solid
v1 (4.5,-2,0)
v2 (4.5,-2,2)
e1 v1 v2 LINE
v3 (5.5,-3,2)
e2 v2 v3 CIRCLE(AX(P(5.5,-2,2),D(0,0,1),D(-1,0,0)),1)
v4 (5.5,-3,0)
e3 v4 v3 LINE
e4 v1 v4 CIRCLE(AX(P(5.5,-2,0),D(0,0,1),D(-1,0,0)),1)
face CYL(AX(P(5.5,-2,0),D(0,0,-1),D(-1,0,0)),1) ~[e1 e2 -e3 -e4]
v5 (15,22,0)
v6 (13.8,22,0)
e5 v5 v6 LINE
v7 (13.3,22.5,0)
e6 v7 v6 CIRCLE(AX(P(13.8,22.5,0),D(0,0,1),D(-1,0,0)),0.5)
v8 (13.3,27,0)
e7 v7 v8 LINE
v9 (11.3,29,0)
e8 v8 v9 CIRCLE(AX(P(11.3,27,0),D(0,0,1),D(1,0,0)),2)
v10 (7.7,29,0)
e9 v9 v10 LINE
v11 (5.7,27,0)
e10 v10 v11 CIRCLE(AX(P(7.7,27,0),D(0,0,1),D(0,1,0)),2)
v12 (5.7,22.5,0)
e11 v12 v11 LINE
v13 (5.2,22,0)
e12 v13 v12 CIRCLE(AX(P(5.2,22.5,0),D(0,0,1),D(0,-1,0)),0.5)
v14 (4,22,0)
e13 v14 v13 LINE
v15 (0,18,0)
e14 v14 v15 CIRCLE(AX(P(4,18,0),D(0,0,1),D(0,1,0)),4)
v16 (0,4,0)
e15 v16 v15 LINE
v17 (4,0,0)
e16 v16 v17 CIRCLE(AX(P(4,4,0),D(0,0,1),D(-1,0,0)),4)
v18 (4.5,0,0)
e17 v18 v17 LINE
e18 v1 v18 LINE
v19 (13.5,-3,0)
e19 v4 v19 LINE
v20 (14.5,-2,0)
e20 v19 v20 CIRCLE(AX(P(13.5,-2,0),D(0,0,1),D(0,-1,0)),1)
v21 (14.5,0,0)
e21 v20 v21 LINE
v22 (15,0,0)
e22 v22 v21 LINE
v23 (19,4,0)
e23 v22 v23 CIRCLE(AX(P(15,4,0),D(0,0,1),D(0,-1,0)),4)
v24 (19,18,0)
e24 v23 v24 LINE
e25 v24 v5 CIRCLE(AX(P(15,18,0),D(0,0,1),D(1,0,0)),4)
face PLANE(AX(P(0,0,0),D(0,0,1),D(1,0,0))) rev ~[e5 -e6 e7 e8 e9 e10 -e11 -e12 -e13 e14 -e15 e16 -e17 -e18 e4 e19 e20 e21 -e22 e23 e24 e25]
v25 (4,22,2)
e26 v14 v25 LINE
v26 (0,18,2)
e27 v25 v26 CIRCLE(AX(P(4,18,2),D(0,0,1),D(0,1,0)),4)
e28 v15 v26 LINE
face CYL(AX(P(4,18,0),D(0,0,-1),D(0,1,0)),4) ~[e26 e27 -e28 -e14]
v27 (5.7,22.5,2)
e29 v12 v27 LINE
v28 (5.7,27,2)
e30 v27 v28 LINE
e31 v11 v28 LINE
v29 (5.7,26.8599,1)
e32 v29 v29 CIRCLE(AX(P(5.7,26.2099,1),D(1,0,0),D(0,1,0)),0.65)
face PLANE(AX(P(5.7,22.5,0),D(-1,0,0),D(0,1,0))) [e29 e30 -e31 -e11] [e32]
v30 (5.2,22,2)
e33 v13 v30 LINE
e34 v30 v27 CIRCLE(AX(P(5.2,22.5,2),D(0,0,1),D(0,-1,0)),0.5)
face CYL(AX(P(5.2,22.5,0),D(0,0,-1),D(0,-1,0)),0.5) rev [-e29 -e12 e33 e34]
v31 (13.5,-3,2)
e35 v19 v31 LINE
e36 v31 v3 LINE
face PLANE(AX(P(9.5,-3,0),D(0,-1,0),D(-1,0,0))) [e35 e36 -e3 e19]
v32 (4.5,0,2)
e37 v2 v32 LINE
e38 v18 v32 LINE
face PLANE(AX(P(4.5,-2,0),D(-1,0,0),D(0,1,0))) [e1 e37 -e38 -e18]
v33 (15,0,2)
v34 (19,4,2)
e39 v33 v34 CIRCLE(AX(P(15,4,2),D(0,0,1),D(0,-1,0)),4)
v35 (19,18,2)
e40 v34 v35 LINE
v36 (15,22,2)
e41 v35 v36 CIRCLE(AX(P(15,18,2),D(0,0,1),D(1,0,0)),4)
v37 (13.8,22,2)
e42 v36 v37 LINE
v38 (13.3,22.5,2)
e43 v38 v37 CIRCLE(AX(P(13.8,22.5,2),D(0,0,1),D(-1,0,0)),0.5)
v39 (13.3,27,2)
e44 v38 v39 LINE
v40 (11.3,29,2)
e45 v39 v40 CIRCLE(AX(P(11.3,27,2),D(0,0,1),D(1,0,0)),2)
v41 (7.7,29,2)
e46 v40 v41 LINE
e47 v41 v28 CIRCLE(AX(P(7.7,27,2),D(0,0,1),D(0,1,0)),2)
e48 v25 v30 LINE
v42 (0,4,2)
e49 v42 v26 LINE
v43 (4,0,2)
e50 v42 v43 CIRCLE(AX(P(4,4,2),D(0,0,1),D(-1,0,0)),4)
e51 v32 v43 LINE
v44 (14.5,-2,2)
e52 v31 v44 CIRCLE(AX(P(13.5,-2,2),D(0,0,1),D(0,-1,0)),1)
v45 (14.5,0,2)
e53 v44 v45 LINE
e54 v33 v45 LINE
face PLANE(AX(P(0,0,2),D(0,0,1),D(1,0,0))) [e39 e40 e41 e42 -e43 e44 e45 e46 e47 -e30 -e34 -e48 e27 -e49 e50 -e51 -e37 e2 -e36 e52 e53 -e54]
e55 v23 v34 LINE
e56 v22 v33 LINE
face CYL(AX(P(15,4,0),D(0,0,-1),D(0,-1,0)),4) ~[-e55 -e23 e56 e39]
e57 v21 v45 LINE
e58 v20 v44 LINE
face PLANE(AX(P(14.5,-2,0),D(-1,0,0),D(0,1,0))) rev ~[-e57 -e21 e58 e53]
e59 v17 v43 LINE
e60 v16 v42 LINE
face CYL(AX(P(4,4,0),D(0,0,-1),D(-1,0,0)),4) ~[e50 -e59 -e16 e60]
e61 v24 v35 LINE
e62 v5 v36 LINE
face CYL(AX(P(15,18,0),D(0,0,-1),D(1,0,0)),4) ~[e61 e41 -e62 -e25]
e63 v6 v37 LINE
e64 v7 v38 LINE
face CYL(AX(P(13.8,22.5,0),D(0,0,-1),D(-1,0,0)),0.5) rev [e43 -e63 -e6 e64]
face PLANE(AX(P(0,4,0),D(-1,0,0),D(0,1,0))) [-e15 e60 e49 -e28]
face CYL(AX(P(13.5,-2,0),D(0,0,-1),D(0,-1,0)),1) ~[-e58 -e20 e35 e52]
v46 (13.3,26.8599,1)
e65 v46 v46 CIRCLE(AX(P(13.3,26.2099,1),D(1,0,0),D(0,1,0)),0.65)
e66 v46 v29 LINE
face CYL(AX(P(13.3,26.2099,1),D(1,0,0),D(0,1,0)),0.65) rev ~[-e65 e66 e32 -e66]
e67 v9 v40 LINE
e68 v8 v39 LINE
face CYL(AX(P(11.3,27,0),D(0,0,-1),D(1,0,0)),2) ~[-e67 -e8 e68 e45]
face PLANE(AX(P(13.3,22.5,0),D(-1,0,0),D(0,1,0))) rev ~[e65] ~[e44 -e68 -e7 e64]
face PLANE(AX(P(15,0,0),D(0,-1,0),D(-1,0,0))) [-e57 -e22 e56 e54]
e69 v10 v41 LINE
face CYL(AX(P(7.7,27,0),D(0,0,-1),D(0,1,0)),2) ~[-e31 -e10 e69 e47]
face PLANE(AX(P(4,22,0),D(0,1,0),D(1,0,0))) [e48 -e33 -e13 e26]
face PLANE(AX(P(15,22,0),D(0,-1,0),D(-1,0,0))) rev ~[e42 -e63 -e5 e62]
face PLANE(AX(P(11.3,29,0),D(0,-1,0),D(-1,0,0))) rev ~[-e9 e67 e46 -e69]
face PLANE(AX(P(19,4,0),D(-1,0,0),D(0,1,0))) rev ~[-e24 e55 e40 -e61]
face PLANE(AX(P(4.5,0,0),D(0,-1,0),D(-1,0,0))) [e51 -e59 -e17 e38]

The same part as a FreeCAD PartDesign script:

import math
import FreeCAD as App
import Part
import Sketcher
from FreeCAD import Vector
Q = App.Units.Quantity

doc = App.newDocument("Part")
body = doc.addObject("PartDesign::Body", "Body")

# Sketch on XY plane
sketch1 = body.newObject("Sketcher::SketchObject", "Sketch")
sketch1.AttachmentSupport = (doc.getObject("XY_Plane"), [""])
sketch1.MapMode = "FlatFace"
sketch1.addGeometry([
    Part.LineSegment(Vector(5.5, -3, 0), Vector(13.5, -3, 0)),  # 0
    Part.ArcOfCircle(Part.Circle(Vector(13.5, -2, 0), Vector(0, 0, 1), 1), math.radians(-90), math.radians(0)),  # 1
    Part.LineSegment(Vector(14.5, -2, 0), Vector(14.5, 0, 0)),  # 2
    Part.LineSegment(Vector(14.5, 0, 0), Vector(15, 0, 0)),  # 3
    Part.ArcOfCircle(Part.Circle(Vector(15, 4, 0), Vector(0, 0, 1), 4), math.radians(-90), math.radians(0)),  # 4
    Part.LineSegment(Vector(19, 4, 0), Vector(19, 18, 0)),  # 5
    Part.ArcOfCircle(Part.Circle(Vector(15, 18, 0), Vector(0, 0, 1), 4), math.radians(0), math.radians(90)),  # 6
    Part.LineSegment(Vector(15, 22, 0), Vector(13.8, 22, 0)),  # 7
    Part.ArcOfCircle(Part.Circle(Vector(13.8, 22.5, 0), Vector(0, 0, 1), 0.5), math.radians(180), math.radians(270)),  # 8
    Part.LineSegment(Vector(13.3, 22.5, 0), Vector(13.3, 27, 0)),  # 9
    Part.ArcOfCircle(Part.Circle(Vector(11.3, 27, 0), Vector(0, 0, 1), 2), math.radians(0), math.radians(90)),  # 10
    Part.LineSegment(Vector(11.3, 29, 0), Vector(7.7, 29, 0)),  # 11
    Part.ArcOfCircle(Part.Circle(Vector(7.7, 27, 0), Vector(0, 0, 1), 2), math.radians(90), math.radians(180)),  # 12
    Part.LineSegment(Vector(5.7, 27, 0), Vector(5.7, 22.5, 0)),  # 13
    Part.ArcOfCircle(Part.Circle(Vector(5.2, 22.5, 0), Vector(0, 0, 1), 0.5), math.radians(-90), math.radians(0)),  # 14
    Part.LineSegment(Vector(5.2, 22, 0), Vector(4, 22, 0)),  # 15
    Part.ArcOfCircle(Part.Circle(Vector(4, 18, 0), Vector(0, 0, 1), 4), math.radians(90), math.radians(180)),  # 16
    Part.LineSegment(Vector(0, 18, 0), Vector(0, 4, 0)),  # 17
    Part.ArcOfCircle(Part.Circle(Vector(4, 4, 0), Vector(0, 0, 1), 4), math.radians(180), math.radians(270)),  # 18
    Part.LineSegment(Vector(4, 0, 0), Vector(4.5, 0, 0)),  # 19
    Part.LineSegment(Vector(4.5, 0, 0), Vector(4.5, -2, 0)),  # 20
    Part.ArcOfCircle(Part.Circle(Vector(5.5, -2, 0), Vector(0, 0, 1), 1), math.radians(180), math.radians(270)),  # 21
], False)
sketch1.addConstraint([
    Sketcher.Constraint("Tangent", 0, 2, 1, 1),
    Sketcher.Constraint("Tangent", 1, 2, 2, 1),
    Sketcher.Constraint("Coincident", 2, 2, 3, 1),
    Sketcher.Constraint("Tangent", 3, 2, 4, 1),
    Sketcher.Constraint("Tangent", 4, 2, 5, 1),
    Sketcher.Constraint("Tangent", 5, 2, 6, 1),
    Sketcher.Constraint("Tangent", 6, 2, 7, 1),
    Sketcher.Constraint("Tangent", 7, 2, 8, 2),
    Sketcher.Constraint("Tangent", 8, 1, 9, 1),
    Sketcher.Constraint("Tangent", 9, 2, 10, 1),
    Sketcher.Constraint("Tangent", 10, 2, 11, 1),
    Sketcher.Constraint("Tangent", 11, 2, 12, 1),
    Sketcher.Constraint("Tangent", 12, 2, 13, 1),
    Sketcher.Constraint("Tangent", 13, 2, 14, 2),
    Sketcher.Constraint("Tangent", 14, 1, 15, 1),
    Sketcher.Constraint("Tangent", 15, 2, 16, 1),
    Sketcher.Constraint("Tangent", 16, 2, 17, 1),
    Sketcher.Constraint("Tangent", 17, 2, 18, 1),
    Sketcher.Constraint("Tangent", 18, 2, 19, 1),
    Sketcher.Constraint("Coincident", 19, 2, 20, 1),
    Sketcher.Constraint("Tangent", 20, 2, 21, 1),
    Sketcher.Constraint("Tangent", 21, 2, 0, 1),
    Sketcher.Constraint("Horizontal", 0),
    Sketcher.Constraint("Vertical", 2),
    Sketcher.Constraint("Horizontal", 3),
    Sketcher.Constraint("Vertical", 5),
    Sketcher.Constraint("Horizontal", 7),
    Sketcher.Constraint("Vertical", 9),
    Sketcher.Constraint("Horizontal", 11),
    Sketcher.Constraint("Vertical", 13),
    Sketcher.Constraint("Horizontal", 15),
    Sketcher.Constraint("Vertical", 17),
    Sketcher.Constraint("Horizontal", 19),
    Sketcher.Constraint("Vertical", 20),
    Sketcher.Constraint("Equal", 4, 6),
    Sketcher.Constraint("Equal", 10, 12),
    Sketcher.Constraint("Equal", 8, 14),
    Sketcher.Constraint("Equal", 6, 16),
    Sketcher.Constraint("Equal", 16, 18),
    Sketcher.Constraint("Equal", 1, 21),
    Sketcher.Constraint("PointOnObject", 2, 2, -1),
    Sketcher.Constraint("PointOnObject", 16, 2, -2),
    Sketcher.Constraint("PointOnObject", 18, 2, -1),
    Sketcher.Constraint("Horizontal", 8, 3, 14, 3),
    Sketcher.Constraint("Equal", 7, 15),
    Sketcher.Constraint("Equal", 3, 19),
    Sketcher.Constraint("Radius", 1, Q("1 mm")),
    Sketcher.Constraint("Radius", 4, Q("4 mm")),
    Sketcher.Constraint("Radius", 10, Q("2 mm")),
    Sketcher.Constraint("Radius", 8, Q("0.5 mm")),
    Sketcher.Constraint("DistanceY", 2, 1, 2, 2, Q("2 mm")),
    Sketcher.Constraint("DistanceX", 3, 1, 3, 2, Q("0.5 mm")),
    Sketcher.Constraint("DistanceX", -1, 1, 4, 2, Q("19 mm")),
    Sketcher.Constraint("DistanceY", 5, 1, 5, 2, Q("14 mm")),
    Sketcher.Constraint("DistanceX", 7, 2, 7, 1, Q("1.2 mm")),
    Sketcher.Constraint("DistanceY", 9, 1, 9, 2, Q("4.5 mm")),
])
pad1 = body.newObject("PartDesign::Pad", "Pad")
pad1.Profile = sketch1
pad1.Length = 2

# Sketch on YZ plane
sketch2 = body.newObject("Sketcher::SketchObject", "Sketch001")
sketch2.AttachmentSupport = (doc.getObject("YZ_Plane"), [""])
sketch2.MapMode = "FlatFace"
sketch2.AttachmentOffset = App.Placement(Vector(0, 0, 13.3), App.Rotation())
sketch2.addGeometry(Part.Circle(Vector(26.2, 1, 0), Vector(0, 0, 1), 0.7), False)
sketch2.addConstraint([
    Sketcher.Constraint("Diameter", 0, Q("1.3 mm")),
    Sketcher.Constraint("DistanceY", -1, 1, 0, 3, Q("1 mm")),
    Sketcher.Constraint("DistanceX", -1, 1, 0, 3, Q("26.21 mm")),
])
pocket1 = body.newObject("PartDesign::Pocket", "Pocket")
pocket1.Profile = sketch2
pocket1.Length = 20

doc.recompute()
